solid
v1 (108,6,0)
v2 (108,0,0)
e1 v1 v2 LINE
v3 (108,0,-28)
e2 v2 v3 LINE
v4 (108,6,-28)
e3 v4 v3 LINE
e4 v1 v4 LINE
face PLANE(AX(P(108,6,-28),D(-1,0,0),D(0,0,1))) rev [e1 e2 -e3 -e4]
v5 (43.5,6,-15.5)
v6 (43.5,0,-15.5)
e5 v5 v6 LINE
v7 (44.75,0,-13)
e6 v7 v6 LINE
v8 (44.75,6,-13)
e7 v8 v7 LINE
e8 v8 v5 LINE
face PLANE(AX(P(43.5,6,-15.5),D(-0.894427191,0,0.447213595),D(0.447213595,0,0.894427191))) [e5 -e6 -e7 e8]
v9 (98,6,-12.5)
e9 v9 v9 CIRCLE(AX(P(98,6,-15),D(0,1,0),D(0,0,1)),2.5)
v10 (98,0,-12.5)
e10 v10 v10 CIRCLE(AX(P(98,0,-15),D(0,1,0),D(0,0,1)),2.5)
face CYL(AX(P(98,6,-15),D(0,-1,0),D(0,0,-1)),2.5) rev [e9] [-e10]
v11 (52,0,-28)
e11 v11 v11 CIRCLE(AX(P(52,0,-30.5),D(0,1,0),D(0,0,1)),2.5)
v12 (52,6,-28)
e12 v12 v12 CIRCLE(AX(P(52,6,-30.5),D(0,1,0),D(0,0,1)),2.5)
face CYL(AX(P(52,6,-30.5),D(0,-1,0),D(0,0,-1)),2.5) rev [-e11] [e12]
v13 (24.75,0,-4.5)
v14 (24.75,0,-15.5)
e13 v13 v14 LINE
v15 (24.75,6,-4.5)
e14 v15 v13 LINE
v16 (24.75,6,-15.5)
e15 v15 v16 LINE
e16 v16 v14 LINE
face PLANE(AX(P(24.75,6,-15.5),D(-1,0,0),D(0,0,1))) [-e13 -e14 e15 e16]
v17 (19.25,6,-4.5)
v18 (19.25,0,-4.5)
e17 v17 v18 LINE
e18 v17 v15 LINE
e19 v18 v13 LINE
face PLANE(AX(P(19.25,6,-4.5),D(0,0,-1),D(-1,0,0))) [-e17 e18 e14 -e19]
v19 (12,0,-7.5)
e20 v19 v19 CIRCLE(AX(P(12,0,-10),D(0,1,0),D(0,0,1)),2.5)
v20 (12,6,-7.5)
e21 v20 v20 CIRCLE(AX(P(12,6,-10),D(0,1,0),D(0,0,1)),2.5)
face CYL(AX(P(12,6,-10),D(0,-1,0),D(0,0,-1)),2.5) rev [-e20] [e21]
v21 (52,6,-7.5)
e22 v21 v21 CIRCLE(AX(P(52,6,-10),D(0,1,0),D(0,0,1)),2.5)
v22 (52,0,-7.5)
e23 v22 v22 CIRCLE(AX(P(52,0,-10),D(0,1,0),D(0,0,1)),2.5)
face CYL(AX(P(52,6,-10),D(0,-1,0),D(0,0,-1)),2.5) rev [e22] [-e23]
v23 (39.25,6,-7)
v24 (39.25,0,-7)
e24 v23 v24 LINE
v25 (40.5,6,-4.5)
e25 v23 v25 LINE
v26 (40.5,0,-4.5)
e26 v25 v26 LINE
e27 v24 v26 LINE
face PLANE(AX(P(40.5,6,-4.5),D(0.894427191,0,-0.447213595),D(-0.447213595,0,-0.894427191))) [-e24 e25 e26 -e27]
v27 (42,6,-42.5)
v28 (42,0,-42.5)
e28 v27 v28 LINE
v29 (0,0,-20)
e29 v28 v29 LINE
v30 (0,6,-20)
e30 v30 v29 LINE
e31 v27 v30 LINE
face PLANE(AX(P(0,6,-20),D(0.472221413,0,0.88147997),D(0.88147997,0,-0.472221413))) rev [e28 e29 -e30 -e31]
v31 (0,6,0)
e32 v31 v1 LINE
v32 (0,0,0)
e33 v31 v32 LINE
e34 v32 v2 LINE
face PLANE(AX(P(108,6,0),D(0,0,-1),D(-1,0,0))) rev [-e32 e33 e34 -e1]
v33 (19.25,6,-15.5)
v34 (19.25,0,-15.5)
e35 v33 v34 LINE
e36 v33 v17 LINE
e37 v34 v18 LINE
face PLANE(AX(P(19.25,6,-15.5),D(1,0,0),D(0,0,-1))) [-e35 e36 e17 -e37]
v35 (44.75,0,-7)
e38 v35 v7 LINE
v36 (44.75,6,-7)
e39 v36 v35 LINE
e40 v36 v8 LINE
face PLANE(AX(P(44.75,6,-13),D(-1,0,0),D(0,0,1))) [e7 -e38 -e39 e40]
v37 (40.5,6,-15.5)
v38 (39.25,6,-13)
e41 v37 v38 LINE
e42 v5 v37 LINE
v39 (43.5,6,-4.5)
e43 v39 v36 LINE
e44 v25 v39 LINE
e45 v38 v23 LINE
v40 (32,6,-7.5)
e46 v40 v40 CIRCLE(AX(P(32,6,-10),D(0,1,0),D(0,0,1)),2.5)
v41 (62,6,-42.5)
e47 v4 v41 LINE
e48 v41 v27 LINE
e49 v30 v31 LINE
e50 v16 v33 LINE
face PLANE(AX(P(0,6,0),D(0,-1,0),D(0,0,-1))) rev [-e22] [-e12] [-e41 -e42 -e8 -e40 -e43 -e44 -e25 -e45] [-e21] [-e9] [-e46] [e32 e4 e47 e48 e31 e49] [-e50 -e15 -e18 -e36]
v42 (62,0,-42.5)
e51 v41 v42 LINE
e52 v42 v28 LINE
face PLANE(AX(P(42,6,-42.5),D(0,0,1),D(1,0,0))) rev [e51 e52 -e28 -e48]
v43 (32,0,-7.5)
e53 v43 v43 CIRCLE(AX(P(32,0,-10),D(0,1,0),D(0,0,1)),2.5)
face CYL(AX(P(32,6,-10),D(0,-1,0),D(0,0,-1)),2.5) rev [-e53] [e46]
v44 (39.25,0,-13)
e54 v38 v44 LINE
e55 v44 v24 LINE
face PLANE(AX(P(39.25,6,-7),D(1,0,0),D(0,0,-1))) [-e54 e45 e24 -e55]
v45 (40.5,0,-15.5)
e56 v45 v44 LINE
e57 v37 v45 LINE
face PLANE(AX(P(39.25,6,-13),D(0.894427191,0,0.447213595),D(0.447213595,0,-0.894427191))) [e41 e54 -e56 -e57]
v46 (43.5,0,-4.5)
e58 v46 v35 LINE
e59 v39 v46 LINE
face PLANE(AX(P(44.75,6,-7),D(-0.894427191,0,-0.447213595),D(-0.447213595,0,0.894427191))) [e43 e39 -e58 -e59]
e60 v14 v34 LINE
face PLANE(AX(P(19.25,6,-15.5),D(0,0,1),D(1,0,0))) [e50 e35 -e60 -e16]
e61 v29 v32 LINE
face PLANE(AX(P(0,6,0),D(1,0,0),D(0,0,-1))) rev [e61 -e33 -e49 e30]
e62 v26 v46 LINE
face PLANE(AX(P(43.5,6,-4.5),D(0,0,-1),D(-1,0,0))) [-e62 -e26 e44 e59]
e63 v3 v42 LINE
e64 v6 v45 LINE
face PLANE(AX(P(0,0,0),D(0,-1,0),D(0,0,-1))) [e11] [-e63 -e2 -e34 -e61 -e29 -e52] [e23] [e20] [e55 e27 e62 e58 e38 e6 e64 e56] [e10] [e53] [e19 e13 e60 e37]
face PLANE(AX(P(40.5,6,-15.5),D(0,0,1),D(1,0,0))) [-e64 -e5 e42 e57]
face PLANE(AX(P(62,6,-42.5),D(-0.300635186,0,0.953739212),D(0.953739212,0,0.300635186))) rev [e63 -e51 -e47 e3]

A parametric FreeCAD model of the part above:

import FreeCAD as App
import Part
import Sketcher

V = App.Vector

doc = App.newDocument("Part")
body = doc.addObject("PartDesign::Body", "Body")

sketch1 = doc.addObject("Sketcher::SketchObject", "Sketch")
body.addObject(sketch1)
sketch1.AttachmentSupport = (doc.XZ_Plane, [""])
sketch1.MapMode = "FlatFace"
sketch1.addGeometry(Part.LineSegment(V(0, -20, 0), V(0, 0, 0)), False)
sketch1.addGeometry(Part.LineSegment(V(0, 0, 0), V(108, 0, 0)), False)
sketch1.addGeometry(Part.LineSegment(V(108, 0, 0), V(108, -28, 0)), False)
sketch1.addGeometry(Part.LineSegment(V(108, -28, 0), V(62, -42.5, 0)), False)
sketch1.addGeometry(Part.LineSegment(V(62, -42.5, 0), V(42, -42.5, 0)), False)
sketch1.addGeometry(Part.LineSegment(V(42, -42.5, 0), V(0, -20, 0)), False)
sketch1.addGeometry(Part.Circle(V(98, -15, 0), V(0, 0, 1), 2.5), False)
sketch1.addGeometry(Part.Circle(V(52, -10, 0), V(0, 0, 1), 2.5), False)
sketch1.addGeometry(Part.LineSegment(V(40.5, -15.5, 0), V(43.5, -15.5, 0)), False)
sketch1.addGeometry(Part.LineSegment(V(43.5, -15.5, 0), V(44.8, -13, 0)), False)
sketch1.addGeometry(Part.LineSegment(V(44.8, -13, 0), V(44.8, -7, 0)), False)
sketch1.addGeometry(Part.LineSegment(V(44.8, -7, 0), V(43.5, -4.5, 0)), False)
sketch1.addGeometry(Part.LineSegment(V(43.5, -4.5, 0), V(40.5, -4.5, 0)), False)
sketch1.addGeometry(Part.LineSegment(V(40.5, -4.5, 0), V(39.2, -7, 0)), False)
sketch1.addGeometry(Part.LineSegment(V(39.2, -7, 0), V(39.2, -13, 0)), False)
sketch1.addGeometry(Part.LineSegment(V(39.2, -13, 0), V(40.5, -15.5, 0)), False)
sketch1.addGeometry(Part.Circle(V(32, -10, 0), V(0, 0, 1), 2.5), False)
sketch1.addGeometry(Part.LineSegment(V(19.2, -4.5, 0), V(19.2, -15.5, 0)), False)
sketch1.addGeometry(Part.LineSegment(V(19.2, -15.5, 0), V(24.8, -15.5, 0)), False)
sketch1.addGeometry(Part.LineSegment(V(24.8, -15.5, 0), V(24.8, -4.5, 0)), False)
sketch1.addGeometry(Part.LineSegment(V(24.8, -4.5, 0), V(19.2, -4.5, 0)), False)
sketch1.addGeometry(Part.Circle(V(12, -10, 0), V(0, 0, 1), 2.5), False)
sketch1.addGeometry(Part.Circle(V(52, -30.5, 0), V(0, 0, 1), 2.5), False)
sketch1.addConstraint(Sketcher.Constraint("Coincident", 0, 2, 1, 1))
sketch1.addConstraint(Sketcher.Constraint("Coincident", 1, 2, 2, 1))
sketch1.addConstraint(Sketcher.Constraint("Coincident", 2, 2, 3, 1))
sketch1.addConstraint(Sketcher.Constraint("Coincident", 3, 2, 4, 1))
sketch1.addConstraint(Sketcher.Constraint("Coincident", 4, 2, 5, 1))
sketch1.addConstraint(Sketcher.Constraint("Coincident", 5, 2, 0, 1))
sketch1.addConstraint(Sketcher.Constraint("Coincident", 8, 2, 9, 1))
sketch1.addConstraint(Sketcher.Constraint("Coincident", 9, 2, 10, 1))
sketch1.addConstraint(Sketcher.Constraint("Coincident", 10, 2, 11, 1))
sketch1.addConstraint(Sketcher.Constraint("Coincident", 11, 2, 12, 1))
sketch1.addConstraint(Sketcher.Constraint("Coincident", 12, 2, 13, 1))
sketch1.addConstraint(Sketcher.Constraint("Coincident", 13, 2, 14, 1))
sketch1.addConstraint(Sketcher.Constraint("Coincident", 14, 2, 15, 1))
sketch1.addConstraint(Sketcher.Constraint("Coincident", 15, 2, 8, 1))
sketch1.addConstraint(Sketcher.Constraint("Coincident", 17, 2, 18, 1))
sketch1.addConstraint(Sketcher.Constraint("Coincident", 18, 2, 19, 1))
sketch1.addConstraint(Sketcher.Constraint("Coincident", 19, 2, 20, 1))
sketch1.addConstraint(Sketcher.Constraint("Coincident", 20, 2, 17, 1))
sketch1.addConstraint(Sketcher.Constraint("Vertical", 0))
sketch1.addConstraint(Sketcher.Constraint("Horizontal", 1))
sketch1.addConstraint(Sketcher.Constraint("Vertical", 2))
sketch1.addConstraint(Sketcher.Constraint("Horizontal", 4))
sketch1.addConstraint(Sketcher.Constraint("Horizontal", 8))
sketch1.addConstraint(Sketcher.Constraint("Vertical", 10))
sketch1.addConstraint(Sketcher.Constraint("Horizontal", 12))
sketch1.addConstraint(Sketcher.Constraint("Vertical", 14))
sketch1.addConstraint(Sketcher.Constraint("Vertical", 17))
sketch1.addConstraint(Sketcher.Constraint("Horizontal", 18))
sketch1.addConstraint(Sketcher.Constraint("Vertical", 19))
sketch1.addConstraint(Sketcher.Constraint("Horizontal", 20))
sketch1.addConstraint(Sketcher.Constraint("Coincident", 0, 2, -1, 1))
sketch1.addConstraint(Sketcher.Constraint("Equal", 6, 7))
sketch1.addConstraint(Sketcher.Constraint("Equal", 7, 16))
sketch1.addConstraint(Sketcher.Constraint("Equal", 16, 21))
sketch1.addConstraint(Sketcher.Constraint("Equal", 21, 22))
sketch1.addConstraint(Sketcher.Constraint("Parallel", 9, 13))
sketch1.addConstraint(Sketcher.Constraint("Parallel", 11, 15))
sketch1.addConstraint(Sketcher.Constraint("Horizontal", 7, 3, 16, 3))
sketch1.addConstraint(Sketcher.Constraint("Horizontal", 16, 3, 21, 3))
sketch1.addConstraint(Sketcher.Constraint("Horizontal", 10, 2, 13, 2))
sketch1.addConstraint(Sketcher.Constraint("Horizontal", 9, 2, 14, 2))
sketch1.addConstraint(Sketcher.Constraint("Horizontal", 15, 2, 17, 2))
sketch1.addConstraint(Sketcher.Constraint("Horizontal", 12, 2, 19, 2))
sketch1.addConstraint(Sketcher.Constraint("Vertical", 7, 3, 22, 3))
sketch1.addConstraint(Sketcher.Constraint("Vertical", 8, 2, 11, 2))
sketch1.addConstraint(Sketcher.Constraint("Vertical", 12, 2, 15, 2))
sketch1.addConstraint(Sketcher.Constraint("Equal", 4, 0))
sketch1.addConstraint(Sketcher.Constraint("Diameter", 6, 5.0))
sketch1.addConstraint(Sketcher.Constraint("DistanceX", 1, 1, 1, 2, 108.0))
sketch1.addConstraint(Sketcher.Constraint("DistanceX", 4, 2, 4, 1, 20.0))
sketch1.addConstraint(Sketcher.Constraint("DistanceX", 8, 1, 8, 2, 3.0))
sketch1.addConstraint(Sketcher.Constraint("DistanceY", 2, 2, 2, 1, 28.0))
sketch1.addConstraint(Sketcher.Constraint("DistanceY", 10, 1, 10, 2, 6.0))
sketch1.addConstraint(Sketcher.Constraint("DistanceY", 17, 2, 17, 1, 11.0))
sketch1.addConstraint(Sketcher.Constraint("DistanceX", 18, 1, 18, 2, 5.5))
sketch1.addConstraint(Sketcher.Constraint("DistanceX", -1, 1, 6, 3, 98.0))
sketch1.addConstraint(Sketcher.Constraint("DistanceY", 6, 3, -1, 1, 15.0))
sketch1.addConstraint(Sketcher.Constraint("DistanceX", -1, 1, 7, 3, 52.0))
sketch1.addConstraint(Sketcher.Constraint("DistanceY", 7, 3, -1, 1, 10.0))
sketch1.addConstraint(Sketcher.Constraint("DistanceX", -1, 1, 16, 3, 32.0))
sketch1.addConstraint(Sketcher.Constraint("DistanceX", -1, 1, 21, 3, 12.0))
sketch1.addConstraint(Sketcher.Constraint("DistanceX", -1, 1, 3, 2, 62.0))
sketch1.addConstraint(Sketcher.Constraint("DistanceY", 9, 2, -1, 1, 13.0))
sketch1.addConstraint(Sketcher.Constraint("DistanceY", 3, 2, 22, 3, 12.0))
sketch1.addConstraint(Sketcher.Constraint("DistanceY", 22, 3, 8, 2, 15.0))
sketch1.addConstraint(Sketcher.Constraint("DistanceX", 17, 2, 14, 2, 20.0))
sketch1.addConstraint(Sketcher.Constraint("DistanceX", -1, 1, 8, 2, 43.5))
sketch1.addConstraint(Sketcher.Constraint("DistanceX", 13, 2, 10, 2, 5.5))
pad1 = doc.addObject("PartDesign::Pad", "Pad")
body.addObject(pad1)
pad1.Profile = sketch1
pad1.Length = 6
pad1.Reversed = True

doc.recompute()
